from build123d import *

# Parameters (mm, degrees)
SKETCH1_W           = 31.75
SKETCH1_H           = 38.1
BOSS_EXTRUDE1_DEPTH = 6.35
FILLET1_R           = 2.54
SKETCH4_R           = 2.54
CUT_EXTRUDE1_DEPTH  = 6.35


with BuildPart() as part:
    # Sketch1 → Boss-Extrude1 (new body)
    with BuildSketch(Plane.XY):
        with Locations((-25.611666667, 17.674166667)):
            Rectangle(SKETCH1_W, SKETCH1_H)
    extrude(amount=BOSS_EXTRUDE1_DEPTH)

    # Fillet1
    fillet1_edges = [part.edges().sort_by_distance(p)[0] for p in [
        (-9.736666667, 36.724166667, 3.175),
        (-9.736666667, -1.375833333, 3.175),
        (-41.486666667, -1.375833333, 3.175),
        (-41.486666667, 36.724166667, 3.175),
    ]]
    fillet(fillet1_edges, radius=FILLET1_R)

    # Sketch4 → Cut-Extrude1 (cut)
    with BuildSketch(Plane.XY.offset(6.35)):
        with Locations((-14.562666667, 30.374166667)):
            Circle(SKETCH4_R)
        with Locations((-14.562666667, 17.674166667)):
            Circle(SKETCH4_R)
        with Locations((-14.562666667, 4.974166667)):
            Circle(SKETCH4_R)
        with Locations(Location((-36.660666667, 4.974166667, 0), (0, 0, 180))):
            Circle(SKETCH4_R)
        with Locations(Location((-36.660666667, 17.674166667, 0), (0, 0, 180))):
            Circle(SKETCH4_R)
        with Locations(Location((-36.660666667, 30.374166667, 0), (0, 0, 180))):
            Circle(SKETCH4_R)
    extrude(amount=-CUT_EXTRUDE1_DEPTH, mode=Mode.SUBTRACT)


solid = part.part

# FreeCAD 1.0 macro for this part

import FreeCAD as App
import Part
import Sketcher

V = App.Vector
Q = App.Units.Quantity


def edges_at(feature, points):
    """Names of the edges that pass closest to the given points."""
    edges = feature.Shape.Edges
    near = lambda p: min(range(len(edges)), key=lambda i: edges[i].distToShape(Part.Vertex(*p))[0])
    return sorted({f"Edge{near(p) + 1}" for p in points})

doc = App.newDocument("Part")
body = doc.addObject("PartDesign::Body", "Body")

sketch1 = body.newObject("Sketcher::SketchObject", "Sketch")
sketch1.AttachmentSupport = (doc.getObject("XY_Plane"), [""])
sketch1.MapMode = "FlatFace"
sketch1.addGeometry([
    Part.LineSegment(V(-41, 37, 0), V(-41, -1, 0)),
    Part.LineSegment(V(-41, -1, 0), V(-10, -1, 0)),
    Part.LineSegment(V(-10, -1, 0), V(-10, 37, 0)),
    Part.LineSegment(V(-10, 37, 0), V(-41, 37, 0)),
], False)
sketch1.addConstraint([
    Sketcher.Constraint("Coincident", 0, 2, 1, 1),
    Sketcher.Constraint("Coincident", 1, 2, 2, 1),
    Sketcher.Constraint("Coincident", 2, 2, 3, 1),
    Sketcher.Constraint("Coincident", 3, 2, 0, 1),
    Sketcher.Constraint("Vertical", 0),
    Sketcher.Constraint("Horizontal", 1),
    Sketcher.Constraint("Vertical", 2),
    Sketcher.Constraint("Horizontal", 3),
    Sketcher.Constraint("DistanceY", 0, 2, 0, 1, Q("1.5 in")),
    Sketcher.Constraint("DistanceX", 1, 1, 1, 2, Q("1.25 in")),
    Sketcher.Constraint("DistanceX", 0, 2, -1, 1, 41.486667),
    Sketcher.Constraint("DistanceY", 0, 2, -1, 1, 1.375833),
])
pad1 = body.newObject("PartDesign::Pad", "Pad")
pad1.Profile = sketch1
pad1.Length = Q("0.25 in")
doc.recompute()

fillet = body.newObject("PartDesign::Fillet", "Fillet")
fillet.Base = (pad1, edges_at(pad1, [
    (-9.737, 36.724, 3.175),
    (-9.737, -1.376, 3.175),
    (-41.487, -1.376, 3.175),
    (-41.487, 36.724, 3.175),
]))
fillet.Radius = Q("0.1 in")

sketch2 = body.newObject("Sketcher::SketchObject", "Sketch001")
sketch2.AttachmentSupport = (doc.getObject("XY_Plane"), [""])
sketch2.MapMode = "FlatFace"
sketch2.AttachmentOffset = App.Placement(V(0, 0, 0.25 * 25.4), App.Rotation())
sketch2.addGeometry([
    Part.Circle(V(-14.6, 30.4, 0), V(0, 0, 1), 2.5),
    Part.Circle(V(-14.6, 17.7, 0), V(0, 0, 1), 2.5),
    Part.Circle(V(-14.6, 5, 0), V(0, 0, 1), 2.5),
    Part.Circle(V(-36.7, 5, 0), V(0, 0, 1), 2.5),
    Part.Circle(V(-36.7, 17.7, 0), V(0, 0, 1), 2.5),
    Part.Circle(V(-36.7, 30.4, 0), V(0, 0, 1), 2.5),
], False)
sketch2.addConstraint([
    Sketcher.Constraint("Equal", 0, 1),
    Sketcher.Constraint("Equal", 1, 2),
    Sketcher.Constraint("Equal", 2, 3),
    Sketcher.Constraint("Equal", 3, 4),
    Sketcher.Constraint("Equal", 4, 5),
    Sketcher.Constraint("Horizontal", 2, 3, 3, 3),
    Sketcher.Constraint("Horizontal", 1, 3, 4, 3),
    Sketcher.Constraint("Horizontal", 0, 3, 5, 3),
    Sketcher.Constraint("Vertical", 0, 3, 1, 3),
    Sketcher.Constraint("Vertical", 1, 3, 2, 3),
    Sketcher.Constraint("Vertical", 3, 3, 4, 3),
    Sketcher.Constraint("Vertical", 4, 3, 5, 3),
    Sketcher.Constraint("Diameter", 0, Q("0.2 in")),
    Sketcher.Constraint("DistanceY", 2, 3, 0, 3, Q("1 in")),
    Sketcher.Constraint("DistanceY", 1, 3, 0, 3, Q("0.5 in")),
    Sketcher.Constraint("DistanceX", 3, 3, 2, 3, Q("0.87 in")),
    Sketcher.Constraint("DistanceX", 0, 3, -1, 1, 14.562667),
    Sketcher.Constraint("DistanceY", -1, 1, 0, 3, 30.374167),
])
pocket1 = body.newObject("PartDesign::Pocket", "Pocket")
pocket1.Profile = sketch2
pocket1.Length = Q("0.25 in")

doc.recompute()
